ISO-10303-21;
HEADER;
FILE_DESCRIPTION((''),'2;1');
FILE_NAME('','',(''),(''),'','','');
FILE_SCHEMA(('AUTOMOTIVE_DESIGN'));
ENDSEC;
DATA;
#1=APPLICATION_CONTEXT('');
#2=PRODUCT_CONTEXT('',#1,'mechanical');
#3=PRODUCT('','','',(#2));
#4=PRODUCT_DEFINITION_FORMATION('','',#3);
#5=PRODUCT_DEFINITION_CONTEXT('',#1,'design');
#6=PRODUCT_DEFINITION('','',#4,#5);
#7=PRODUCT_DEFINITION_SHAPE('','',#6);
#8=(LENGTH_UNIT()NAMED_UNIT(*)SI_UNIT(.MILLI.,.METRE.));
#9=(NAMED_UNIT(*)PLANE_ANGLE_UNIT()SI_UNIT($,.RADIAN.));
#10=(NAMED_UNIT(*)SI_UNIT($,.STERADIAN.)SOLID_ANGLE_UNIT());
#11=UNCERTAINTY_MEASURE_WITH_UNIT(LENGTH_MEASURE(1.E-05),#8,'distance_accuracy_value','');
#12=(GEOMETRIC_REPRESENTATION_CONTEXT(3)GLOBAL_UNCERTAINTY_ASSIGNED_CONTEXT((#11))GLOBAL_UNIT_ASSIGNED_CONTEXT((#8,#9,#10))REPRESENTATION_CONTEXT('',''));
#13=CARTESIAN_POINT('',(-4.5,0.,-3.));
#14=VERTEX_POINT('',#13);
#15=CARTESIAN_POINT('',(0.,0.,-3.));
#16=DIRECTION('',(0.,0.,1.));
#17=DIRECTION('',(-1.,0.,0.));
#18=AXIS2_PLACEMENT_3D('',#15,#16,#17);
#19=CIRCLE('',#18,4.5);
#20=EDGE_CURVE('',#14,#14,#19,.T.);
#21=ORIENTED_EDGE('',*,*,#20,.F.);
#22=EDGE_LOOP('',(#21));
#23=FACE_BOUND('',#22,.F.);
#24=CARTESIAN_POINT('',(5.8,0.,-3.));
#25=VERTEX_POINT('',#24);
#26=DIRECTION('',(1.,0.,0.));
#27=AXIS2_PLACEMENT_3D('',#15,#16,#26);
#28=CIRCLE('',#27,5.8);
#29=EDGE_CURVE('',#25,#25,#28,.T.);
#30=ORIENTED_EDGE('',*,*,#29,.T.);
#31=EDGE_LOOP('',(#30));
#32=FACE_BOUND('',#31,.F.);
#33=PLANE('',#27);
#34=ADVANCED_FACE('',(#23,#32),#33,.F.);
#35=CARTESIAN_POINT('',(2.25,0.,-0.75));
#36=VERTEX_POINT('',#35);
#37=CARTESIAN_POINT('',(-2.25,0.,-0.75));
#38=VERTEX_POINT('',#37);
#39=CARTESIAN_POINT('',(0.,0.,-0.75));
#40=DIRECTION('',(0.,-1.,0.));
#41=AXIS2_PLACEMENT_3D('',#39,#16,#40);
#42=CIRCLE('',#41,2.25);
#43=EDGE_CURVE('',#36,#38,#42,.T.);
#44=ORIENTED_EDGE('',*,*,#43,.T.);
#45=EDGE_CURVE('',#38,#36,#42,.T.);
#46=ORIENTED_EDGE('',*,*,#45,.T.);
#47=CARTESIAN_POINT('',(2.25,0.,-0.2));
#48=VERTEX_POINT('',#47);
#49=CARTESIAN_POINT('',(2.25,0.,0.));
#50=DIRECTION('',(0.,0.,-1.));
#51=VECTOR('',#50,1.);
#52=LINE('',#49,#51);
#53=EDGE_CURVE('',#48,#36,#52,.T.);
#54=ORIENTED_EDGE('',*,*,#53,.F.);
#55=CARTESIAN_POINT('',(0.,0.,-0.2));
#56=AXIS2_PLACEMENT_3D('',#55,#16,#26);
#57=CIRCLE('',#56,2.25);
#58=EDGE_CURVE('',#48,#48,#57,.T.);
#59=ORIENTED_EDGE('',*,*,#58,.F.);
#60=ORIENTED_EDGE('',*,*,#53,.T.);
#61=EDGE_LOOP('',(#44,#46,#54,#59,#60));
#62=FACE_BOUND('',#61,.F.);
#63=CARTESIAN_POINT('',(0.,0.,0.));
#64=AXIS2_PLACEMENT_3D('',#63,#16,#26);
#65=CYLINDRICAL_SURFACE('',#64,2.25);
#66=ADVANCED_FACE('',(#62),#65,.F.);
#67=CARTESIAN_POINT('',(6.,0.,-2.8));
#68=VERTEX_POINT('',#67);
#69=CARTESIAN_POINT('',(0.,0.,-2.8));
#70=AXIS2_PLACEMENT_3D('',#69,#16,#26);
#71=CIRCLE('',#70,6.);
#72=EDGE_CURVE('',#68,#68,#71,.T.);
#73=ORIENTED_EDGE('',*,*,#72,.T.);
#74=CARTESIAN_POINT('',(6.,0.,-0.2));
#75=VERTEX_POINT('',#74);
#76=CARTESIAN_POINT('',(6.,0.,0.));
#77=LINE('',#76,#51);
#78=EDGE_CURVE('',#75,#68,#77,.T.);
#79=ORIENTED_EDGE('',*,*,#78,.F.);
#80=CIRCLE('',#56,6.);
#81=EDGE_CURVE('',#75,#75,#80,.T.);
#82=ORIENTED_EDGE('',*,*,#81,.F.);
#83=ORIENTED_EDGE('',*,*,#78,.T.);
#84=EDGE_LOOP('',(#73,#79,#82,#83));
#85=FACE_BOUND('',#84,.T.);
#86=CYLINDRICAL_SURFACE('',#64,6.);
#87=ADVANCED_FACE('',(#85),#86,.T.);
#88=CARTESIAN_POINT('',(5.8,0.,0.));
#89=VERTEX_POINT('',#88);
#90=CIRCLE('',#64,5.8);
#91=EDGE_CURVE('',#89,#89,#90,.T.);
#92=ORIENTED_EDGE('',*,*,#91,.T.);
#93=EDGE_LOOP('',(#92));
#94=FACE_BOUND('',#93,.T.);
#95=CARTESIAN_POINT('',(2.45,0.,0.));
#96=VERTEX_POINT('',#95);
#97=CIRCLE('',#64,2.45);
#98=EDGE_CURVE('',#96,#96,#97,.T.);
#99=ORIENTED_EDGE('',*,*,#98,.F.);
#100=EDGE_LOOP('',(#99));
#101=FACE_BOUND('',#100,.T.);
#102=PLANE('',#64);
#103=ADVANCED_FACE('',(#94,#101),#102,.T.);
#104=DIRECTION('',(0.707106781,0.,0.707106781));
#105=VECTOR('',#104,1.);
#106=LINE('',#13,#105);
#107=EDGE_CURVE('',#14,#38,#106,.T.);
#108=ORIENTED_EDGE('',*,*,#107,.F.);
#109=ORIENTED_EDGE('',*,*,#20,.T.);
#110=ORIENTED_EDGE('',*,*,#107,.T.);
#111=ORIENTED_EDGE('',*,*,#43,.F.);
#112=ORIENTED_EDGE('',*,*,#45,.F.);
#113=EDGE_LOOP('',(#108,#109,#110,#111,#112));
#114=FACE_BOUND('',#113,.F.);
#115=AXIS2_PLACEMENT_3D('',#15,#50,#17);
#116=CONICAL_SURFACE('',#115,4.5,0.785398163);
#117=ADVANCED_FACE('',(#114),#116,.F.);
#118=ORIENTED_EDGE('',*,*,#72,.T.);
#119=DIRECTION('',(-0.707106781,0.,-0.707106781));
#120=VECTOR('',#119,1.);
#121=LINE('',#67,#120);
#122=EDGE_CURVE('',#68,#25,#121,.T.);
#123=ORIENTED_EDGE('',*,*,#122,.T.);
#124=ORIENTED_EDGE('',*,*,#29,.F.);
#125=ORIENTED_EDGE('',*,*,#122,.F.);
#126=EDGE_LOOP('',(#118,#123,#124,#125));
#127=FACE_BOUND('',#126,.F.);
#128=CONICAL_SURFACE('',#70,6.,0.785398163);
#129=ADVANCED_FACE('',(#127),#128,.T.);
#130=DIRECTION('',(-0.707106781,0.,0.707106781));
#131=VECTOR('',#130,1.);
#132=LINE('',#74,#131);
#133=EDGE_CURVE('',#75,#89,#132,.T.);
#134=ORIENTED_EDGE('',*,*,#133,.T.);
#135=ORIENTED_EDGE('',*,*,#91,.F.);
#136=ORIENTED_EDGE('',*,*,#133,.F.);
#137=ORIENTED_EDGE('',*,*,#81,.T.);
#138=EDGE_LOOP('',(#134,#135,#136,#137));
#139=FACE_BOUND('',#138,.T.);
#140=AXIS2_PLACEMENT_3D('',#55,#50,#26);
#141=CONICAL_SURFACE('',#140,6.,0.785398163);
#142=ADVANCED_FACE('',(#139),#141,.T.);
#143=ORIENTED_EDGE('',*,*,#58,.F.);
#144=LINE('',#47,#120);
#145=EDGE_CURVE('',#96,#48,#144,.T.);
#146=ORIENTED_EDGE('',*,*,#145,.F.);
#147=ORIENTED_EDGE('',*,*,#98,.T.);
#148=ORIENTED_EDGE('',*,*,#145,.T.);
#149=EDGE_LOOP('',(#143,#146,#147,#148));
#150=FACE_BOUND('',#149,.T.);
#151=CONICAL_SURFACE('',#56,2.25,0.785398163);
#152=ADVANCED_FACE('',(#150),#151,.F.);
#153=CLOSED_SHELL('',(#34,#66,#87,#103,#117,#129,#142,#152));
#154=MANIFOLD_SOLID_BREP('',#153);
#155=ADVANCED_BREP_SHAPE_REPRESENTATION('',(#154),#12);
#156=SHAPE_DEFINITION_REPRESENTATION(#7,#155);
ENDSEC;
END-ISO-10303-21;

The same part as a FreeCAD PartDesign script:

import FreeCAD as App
import Part
import Sketcher


def edges_at(feature, points):
    """Names of the edges that pass closest to the given points."""
    edges = feature.Shape.Edges
    near = lambda p: min(range(len(edges)), key=lambda i: edges[i].distToShape(Part.Vertex(*p))[0])
    return sorted({f"Edge{near(p) + 1}" for p in points})

doc = App.newDocument("Part")
body = doc.addObject("PartDesign::Body", "Body")

# Sketch on XY plane
sketch1 = body.newObject("Sketcher::SketchObject", "Sketch")
sketch1.AttachmentSupport = (doc.getObject("XY_Plane"), [""])
sketch1.MapMode = "FlatFace"
sketch1.addGeometry([
    Part.Circle(App.Vector(0, 0, 0), App.Vector(0, 0, 1), 6),
    Part.Circle(App.Vector(0, 0, 0), App.Vector(0, 0, 1), 2.2),
], False)
sketch1.addConstraint([
    Sketcher.Constraint("Coincident", 0, 3, -1, 1),
    Sketcher.Constraint("Coincident", 1, 3, -1, 1),
    Sketcher.Constraint("Diameter", 0, 12.0),
    Sketcher.Constraint("Diameter", 1, 4.5),
])
pad1 = body.newObject("PartDesign::Pad", "Pad")
pad1.Profile = sketch1
pad1.Length = 3
pad1.Reversed = True

# Sketch on XZ plane
sketch2 = body.newObject("Sketcher::SketchObject", "Sketch001")
sketch2.AttachmentSupport = (doc.getObject("XZ_Plane"), [""])
sketch2.MapMode = "FlatFace"
sketch2.addGeometry([
    Part.LineSegment(App.Vector(0, 1.5, 0), App.Vector(0, -3, 0)),
    Part.LineSegment(App.Vector(0, -3, 0), App.Vector(-4.5, -3, 0)),
    Part.LineSegment(App.Vector(-4.5, -3, 0), App.Vector(0, 1.5, 0)),
], False)
sketch2.addConstraint([
    Sketcher.Constraint("Coincident", 0, 2, 1, 1),
    Sketcher.Constraint("Coincident", 1, 2, 2, 1),
    Sketcher.Constraint("Coincident", 2, 2, 0, 1),
    Sketcher.Constraint("Vertical", 0),
    Sketcher.Constraint("Horizontal", 1),
    Sketcher.Constraint("PointOnObject", 0, 2, -2),
    Sketcher.Constraint("Equal", 1, 0),
    Sketcher.Constraint("DistanceY", 0, 2, -1, 1, 3.0),
    Sketcher.Constraint("DistanceX", 1, 2, 1, 1, 4.5),
])
groove = body.newObject("PartDesign::Groove", "Groove")
groove.Profile = sketch2
groove.ReferenceAxis = (sketch2, ["V_Axis"])
groove.Angle = 360
doc.recompute()

chamfer = body.newObject("PartDesign::Chamfer", "Chamfer")
chamfer.Base = (groove, edges_at(groove, [(-6, 0, -3), (-6, 0, 0), (-2.25, 0, 0)]))
chamfer.Size = 0.2

doc.recompute()
